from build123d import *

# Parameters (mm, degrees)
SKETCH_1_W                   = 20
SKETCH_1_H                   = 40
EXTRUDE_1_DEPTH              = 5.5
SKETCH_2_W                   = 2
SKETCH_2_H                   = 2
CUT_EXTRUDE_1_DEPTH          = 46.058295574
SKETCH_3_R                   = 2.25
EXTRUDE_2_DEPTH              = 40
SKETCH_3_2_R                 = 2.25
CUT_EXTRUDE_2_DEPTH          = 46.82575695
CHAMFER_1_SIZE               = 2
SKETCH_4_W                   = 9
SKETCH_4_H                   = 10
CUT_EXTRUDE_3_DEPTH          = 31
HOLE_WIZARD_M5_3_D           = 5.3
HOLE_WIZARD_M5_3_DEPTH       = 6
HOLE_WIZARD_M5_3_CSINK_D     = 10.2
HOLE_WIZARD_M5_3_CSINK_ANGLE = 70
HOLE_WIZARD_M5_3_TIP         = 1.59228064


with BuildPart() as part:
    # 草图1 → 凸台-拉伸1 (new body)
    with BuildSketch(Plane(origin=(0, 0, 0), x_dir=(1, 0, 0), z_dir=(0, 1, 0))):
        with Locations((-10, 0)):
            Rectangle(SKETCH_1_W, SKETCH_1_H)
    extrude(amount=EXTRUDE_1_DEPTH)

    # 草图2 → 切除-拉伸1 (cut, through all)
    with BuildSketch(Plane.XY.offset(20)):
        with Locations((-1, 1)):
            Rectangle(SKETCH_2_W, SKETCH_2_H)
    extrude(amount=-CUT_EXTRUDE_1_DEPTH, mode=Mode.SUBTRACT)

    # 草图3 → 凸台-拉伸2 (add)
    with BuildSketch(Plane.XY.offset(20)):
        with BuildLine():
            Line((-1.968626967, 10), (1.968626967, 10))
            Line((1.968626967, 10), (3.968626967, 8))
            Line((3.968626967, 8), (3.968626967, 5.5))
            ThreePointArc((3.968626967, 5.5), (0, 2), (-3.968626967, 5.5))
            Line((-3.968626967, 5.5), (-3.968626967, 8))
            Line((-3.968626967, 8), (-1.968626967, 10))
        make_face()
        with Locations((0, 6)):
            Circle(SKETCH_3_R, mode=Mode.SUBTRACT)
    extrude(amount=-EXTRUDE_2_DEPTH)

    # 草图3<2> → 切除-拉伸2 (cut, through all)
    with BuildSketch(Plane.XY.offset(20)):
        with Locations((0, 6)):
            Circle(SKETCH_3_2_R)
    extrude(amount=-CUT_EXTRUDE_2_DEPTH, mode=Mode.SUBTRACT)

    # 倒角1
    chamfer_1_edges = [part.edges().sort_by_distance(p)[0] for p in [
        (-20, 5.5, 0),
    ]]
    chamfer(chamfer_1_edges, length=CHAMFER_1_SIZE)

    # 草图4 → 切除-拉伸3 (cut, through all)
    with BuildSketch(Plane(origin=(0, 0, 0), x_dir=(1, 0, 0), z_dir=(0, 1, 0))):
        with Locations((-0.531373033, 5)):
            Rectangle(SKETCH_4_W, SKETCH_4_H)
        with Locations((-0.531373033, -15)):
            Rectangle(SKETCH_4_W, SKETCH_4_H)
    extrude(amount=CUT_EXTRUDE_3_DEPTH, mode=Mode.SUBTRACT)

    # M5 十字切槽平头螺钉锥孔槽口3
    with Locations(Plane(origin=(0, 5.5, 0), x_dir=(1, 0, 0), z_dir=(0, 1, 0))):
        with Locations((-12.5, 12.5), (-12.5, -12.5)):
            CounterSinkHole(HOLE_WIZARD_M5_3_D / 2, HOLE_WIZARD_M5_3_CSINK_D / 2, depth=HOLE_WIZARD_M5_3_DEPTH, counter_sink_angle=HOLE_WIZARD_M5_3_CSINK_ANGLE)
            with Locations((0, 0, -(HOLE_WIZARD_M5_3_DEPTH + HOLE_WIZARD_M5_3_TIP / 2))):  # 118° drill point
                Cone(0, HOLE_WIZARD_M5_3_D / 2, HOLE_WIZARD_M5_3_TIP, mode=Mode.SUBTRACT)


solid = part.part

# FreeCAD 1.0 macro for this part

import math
import FreeCAD as App
import Part
import Sketcher

V = App.Vector


def edges_at(feature, points):
    """Names of the edges that pass closest to the given points."""
    edges = feature.Shape.Edges
    near = lambda p: min(range(len(edges)), key=lambda i: edges[i].distToShape(Part.Vertex(*p))[0])
    return sorted({f"Edge{near(p) + 1}" for p in points})

doc = App.newDocument("Part")
params = doc.addObject("Spreadsheet::Sheet", "Params")
for row, (alias, value) in enumerate([
    ("sketch1_width", "20 mm"),
    ("sketch1_height", "40 mm"),
    ("pad1_length", "5.5 mm"),
    ("sketch2_width", "2 mm"),
    ("sketch3_radius", "4 mm"),
    ("sketch3_diameter", "4.5 mm"),
    ("sketch3_height", "2.5 mm"),
    ("pad2_length", "40 mm"),
    ("sketch4_diameter", "4.5 mm"),
    ("chamfer_size", "2 mm"),
    ("sketch5_width", "9 mm"),
    ("sketch5_height", "10 mm"),
    ("sketch6_diameter", "5.3 mm"),
    ("hole_diameter", "5.3 mm"),
    ("hole_depth", "6 mm"),
    ("hole_csink_diameter", "10.2 mm"),
], start=1):
    params.set(f"A{row}", alias)
    params.set(f"B{row}", "=" + value)
    params.setAlias(f"B{row}", alias)

body = doc.addObject("PartDesign::Body", "Body")

# Sketch on XZ plane
sketch1 = body.newObject("Sketcher::SketchObject", "Sketch")
sketch1.AttachmentSupport = (doc.getObject("XZ_Plane"), [""])
sketch1.MapMode = "FlatFace"
sketch1.addGeometry([
    Part.LineSegment(V(-20, -20, 0), V(-20, 20, 0)),
    Part.LineSegment(V(-20, 20, 0), V(0, 20, 0)),
    Part.LineSegment(V(0, 20, 0), V(0, -20, 0)),
    Part.LineSegment(V(0, -20, 0), V(-20, -20, 0)),
], False)
sketch1.addConstraint([
    Sketcher.Constraint("Coincident", 0, 2, 1, 1),
    Sketcher.Constraint("Coincident", 1, 2, 2, 1),
    Sketcher.Constraint("Coincident", 2, 2, 3, 1),
    Sketcher.Constraint("Coincident", 3, 2, 0, 1),
    Sketcher.Constraint("Vertical", 0),
    Sketcher.Constraint("Horizontal", 1),
    Sketcher.Constraint("Vertical", 2),
    Sketcher.Constraint("Horizontal", 3),
    Sketcher.Constraint("Symmetric", 1, 2, 2, 2, -1, 1),
    Sketcher.Constraint("DistanceX", 1, 1, 1, 2, 20.0),
    Sketcher.Constraint("DistanceY", 0, 1, 0, 2, 40.0),
])
sketch1.setExpression("Constraints[9]", "Params.sketch1_width")
sketch1.setExpression("Constraints[10]", "Params.sketch1_height")
pad1 = body.newObject("PartDesign::Pad", "Pad")
pad1.Profile = sketch1
pad1.setExpression("Length", "Params.pad1_length")
pad1.Reversed = True

# Sketch on XY plane
sketch2 = body.newObject("Sketcher::SketchObject", "Sketch001")
sketch2.AttachmentSupport = (doc.getObject("XY_Plane"), [""])
sketch2.MapMode = "FlatFace"
sketch2.AttachmentOffset = App.Placement(V(0, 0, 20), App.Rotation())
sketch2.addGeometry([
    Part.LineSegment(V(-2, 2, 0), V(-2, 0, 0)),
    Part.LineSegment(V(-2, 0, 0), V(0, 0, 0)),
    Part.LineSegment(V(0, 0, 0), V(0, 2, 0)),
    Part.LineSegment(V(0, 2, 0), V(-2, 2, 0)),
], False)
sketch2.addConstraint([
    Sketcher.Constraint("Coincident", 0, 2, 1, 1),
    Sketcher.Constraint("Coincident", 1, 2, 2, 1),
    Sketcher.Constraint("Coincident", 2, 2, 3, 1),
    Sketcher.Constraint("Coincident", 3, 2, 0, 1),
    Sketcher.Constraint("Vertical", 0),
    Sketcher.Constraint("Horizontal", 1),
    Sketcher.Constraint("Vertical", 2),
    Sketcher.Constraint("Horizontal", 3),
    Sketcher.Constraint("Coincident", 1, 2, -1, 1),
    Sketcher.Constraint("Equal", 3, 0),
    Sketcher.Constraint("DistanceX", 1, 1, 1, 2, 2.0),
])
sketch2.setExpression("Constraints[10]", "Params.sketch2_width")
pocket1 = body.newObject("PartDesign::Pocket", "Pocket")
pocket1.Profile = sketch2
pocket1.Type = "ThroughAll"

# Sketch on XY plane
sketch3 = body.newObject("Sketcher::SketchObject", "Sketch002")
sketch3.AttachmentSupport = (doc.getObject("XY_Plane"), [""])
sketch3.MapMode = "FlatFace"
sketch3.AttachmentOffset = App.Placement(V(0, 0, 20), App.Rotation())
sketch3.addGeometry([
    Part.LineSegment(V(2, 10, 0), V(-2, 10, 0)),  # 0
    Part.LineSegment(V(-2, 10, 0), V(-4, 8, 0)),  # 1
    Part.LineSegment(V(-4, 8, 0), V(-4, 5.5, 0)),  # 2
    Part.ArcOfCircle(Part.Circle(V(0, 6, 0), V(0, 0, 1), 4), math.radians(-173), math.radians(-7)),  # 3
    Part.LineSegment(V(4, 5.5, 0), V(4, 8, 0)),  # 4
    Part.LineSegment(V(4, 8, 0), V(2, 10, 0)),  # 5
    Part.Circle(V(0, 6, 0), V(0, 0, 1), 2.2),  # 6
], False)
sketch3.addConstraint([
    Sketcher.Constraint("Coincident", 0, 2, 1, 1),
    Sketcher.Constraint("Coincident", 1, 2, 2, 1),
    Sketcher.Constraint("Coincident", 2, 2, 3, 1),
    Sketcher.Constraint("Coincident", 3, 2, 4, 1),
    Sketcher.Constraint("Coincident", 4, 2, 5, 1),
    Sketcher.Constraint("Coincident", 5, 2, 0, 1),
    Sketcher.Constraint("Horizontal", 0),
    Sketcher.Constraint("Vertical", 2),
    Sketcher.Constraint("Vertical", 4),
    Sketcher.Constraint("Coincident", 6, 3, 3, 3),
    Sketcher.Constraint("Symmetric", 2, 2, 3, 2, -2),
    Sketcher.Constraint("Perpendicular", 1, 5),
    Sketcher.Constraint("Horizontal", 1, 2, 4, 2),
    Sketcher.Constraint("Equal", 1, 5),
    Sketcher.Constraint("Radius", 3, 4.0),
    Sketcher.Constraint("Diameter", 6, 4.5),
    Sketcher.Constraint("DistanceY", 2, 2, 2, 1, 2.5),
    Sketcher.Constraint("DistanceY", -1, 1, 3, 3, 6.0),
    Sketcher.Constraint("DistanceY", -1, 1, 0, 2, 10.0),
    Sketcher.Constraint("DistanceY", -1, 1, 1, 2, 8.0),
])
sketch3.setExpression("Constraints[14]", "Params.sketch3_radius")
sketch3.setExpression("Constraints[15]", "Params.sketch3_diameter")
sketch3.setExpression("Constraints[16]", "Params.sketch3_height")
pad2 = body.newObject("PartDesign::Pad", "Pad001")
pad2.Profile = sketch3
pad2.setExpression("Length", "Params.pad2_length")
pad2.Reversed = True

# Sketch on XY plane
sketch4 = body.newObject("Sketcher::SketchObject", "Sketch003")
sketch4.AttachmentSupport = (doc.getObject("XY_Plane"), [""])
sketch4.MapMode = "FlatFace"
sketch4.AttachmentOffset = App.Placement(V(0, 0, 20), App.Rotation())
sketch4.addGeometry(Part.Circle(V(0, 6, 0), V(0, 0, 1), 2.2), False)
sketch4.addConstraint([
    Sketcher.Constraint("PointOnObject", 0, 3, -2),
    Sketcher.Constraint("Diameter", 0, 4.5),
    Sketcher.Constraint("DistanceY", -1, 1, 0, 3, 6.0),
])
sketch4.setExpression("Constraints[1]", "Params.sketch4_diameter")
pocket2 = body.newObject("PartDesign::Pocket", "Pocket001")
pocket2.Profile = sketch4
pocket2.Type = "ThroughAll"
doc.recompute()

chamfer = body.newObject("PartDesign::Chamfer", "Chamfer")
chamfer.Base = (pocket2, edges_at(pocket2, [(-20, 5.5, 0)]))
chamfer.setExpression("Size", "Params.chamfer_size")

# Sketch on XZ plane
sketch5 = body.newObject("Sketcher::SketchObject", "Sketch004")
sketch5.AttachmentSupport = (doc.getObject("XZ_Plane"), [""])
sketch5.MapMode = "FlatFace"
sketch5.addGeometry([
    Part.LineSegment(V(-5, -10, 0), V(-5, 0, 0)),  # 0
    Part.LineSegment(V(-5, 0, 0), V(4, 0, 0)),  # 1
    Part.LineSegment(V(4, 0, 0), V(4, -10, 0)),  # 2
    Part.LineSegment(V(4, -10, 0), V(-5, -10, 0)),  # 3
    Part.LineSegment(V(-5, 10, 0), V(-5, 20, 0)),  # 4
    Part.LineSegment(V(-5, 20, 0), V(4, 20, 0)),  # 5
    Part.LineSegment(V(4, 20, 0), V(4, 10, 0)),  # 6
    Part.LineSegment(V(4, 10, 0), V(-5, 10, 0)),  # 7
], False)
sketch5.addConstraint([
    Sketcher.Constraint("Coincident", 0, 2, 1, 1),
    Sketcher.Constraint("Coincident", 1, 2, 2, 1),
    Sketcher.Constraint("Coincident", 2, 2, 3, 1),
    Sketcher.Constraint("Coincident", 3, 2, 0, 1),
    Sketcher.Constraint("Coincident", 4, 2, 5, 1),
    Sketcher.Constraint("Coincident", 5, 2, 6, 1),
    Sketcher.Constraint("Coincident", 6, 2, 7, 1),
    Sketcher.Constraint("Coincident", 7, 2, 4, 1),
    Sketcher.Constraint("Vertical", 0),
    Sketcher.Constraint("Horizontal", 1),
    Sketcher.Constraint("Vertical", 2),
    Sketcher.Constraint("Horizontal", 3),
    Sketcher.Constraint("Vertical", 4),
    Sketcher.Constraint("Horizontal", 5),
    Sketcher.Constraint("Vertical", 6),
    Sketcher.Constraint("Horizontal", 7),
    Sketcher.Constraint("Symmetric", 2, 2, 6, 2, -1),
    Sketcher.Constraint("PointOnObject", 0, 2, -1),
    Sketcher.Constraint("Vertical", 3, 2, 4, 2),
    Sketcher.Constraint("Equal", 2, 4),
    Sketcher.Constraint("DistanceX", 1, 1, 1, 2, 9.0),
    Sketcher.Constraint("DistanceY", 0, 1, 0, 2, 10.0),
    Sketcher.Constraint("DistanceX", 0, 2, -1, 1, 5.031373),
])
sketch5.setExpression("Constraints[20]", "Params.sketch5_width")
sketch5.setExpression("Constraints[21]", "Params.sketch5_height")
pocket3 = body.newObject("PartDesign::Pocket", "Pocket002")
pocket3.Profile = sketch5
pocket3.Type = "ThroughAll"

# Sketch on XZ plane
sketch6 = body.newObject("Sketcher::SketchObject", "Sketch005")
sketch6.AttachmentSupport = (doc.getObject("XZ_Plane"), [""])
sketch6.MapMode = "FlatFace"
sketch6.AttachmentOffset = App.Placement(V(0, 0, -5.5), App.Rotation())
sketch6.addGeometry([
    Part.Circle(V(-12.5, -12.5, 0), V(0, 0, 1), 2.6),
    Part.Circle(V(-12.5, 12.5, 0), V(0, 0, 1), 2.6),
], False)
sketch6.addConstraint([
    Sketcher.Constraint("Equal", 0, 1),
    Sketcher.Constraint("Symmetric", 0, 3, 1, 3, -1),
    Sketcher.Constraint("Diameter", 0, 5.3),
    Sketcher.Constraint("DistanceY", 0, 3, 1, 3, 25.0),
    Sketcher.Constraint("DistanceX", 0, 3, -1, 1, 12.5),
])
sketch6.setExpression("Constraints[2]", "Params.sketch6_diameter")
doc.recompute()
hole = body.newObject("PartDesign::Hole", "Hole")
hole.Profile = sketch6
hole.ThreadType = "None"
hole.setExpression("Diameter", "Params.hole_diameter")
hole.DepthType = "Dimension"
hole.setExpression("Depth", "Params.hole_depth")
hole.DrillPoint = "Angled"
hole.DrillPointAngle = 118
hole.HoleCutType = "Countersink"
hole.setExpression("HoleCutDiameter", "Params.hole_csink_diameter")
hole.HoleCutCountersinkAngle = 70
hole.Reversed = True

doc.recompute()
